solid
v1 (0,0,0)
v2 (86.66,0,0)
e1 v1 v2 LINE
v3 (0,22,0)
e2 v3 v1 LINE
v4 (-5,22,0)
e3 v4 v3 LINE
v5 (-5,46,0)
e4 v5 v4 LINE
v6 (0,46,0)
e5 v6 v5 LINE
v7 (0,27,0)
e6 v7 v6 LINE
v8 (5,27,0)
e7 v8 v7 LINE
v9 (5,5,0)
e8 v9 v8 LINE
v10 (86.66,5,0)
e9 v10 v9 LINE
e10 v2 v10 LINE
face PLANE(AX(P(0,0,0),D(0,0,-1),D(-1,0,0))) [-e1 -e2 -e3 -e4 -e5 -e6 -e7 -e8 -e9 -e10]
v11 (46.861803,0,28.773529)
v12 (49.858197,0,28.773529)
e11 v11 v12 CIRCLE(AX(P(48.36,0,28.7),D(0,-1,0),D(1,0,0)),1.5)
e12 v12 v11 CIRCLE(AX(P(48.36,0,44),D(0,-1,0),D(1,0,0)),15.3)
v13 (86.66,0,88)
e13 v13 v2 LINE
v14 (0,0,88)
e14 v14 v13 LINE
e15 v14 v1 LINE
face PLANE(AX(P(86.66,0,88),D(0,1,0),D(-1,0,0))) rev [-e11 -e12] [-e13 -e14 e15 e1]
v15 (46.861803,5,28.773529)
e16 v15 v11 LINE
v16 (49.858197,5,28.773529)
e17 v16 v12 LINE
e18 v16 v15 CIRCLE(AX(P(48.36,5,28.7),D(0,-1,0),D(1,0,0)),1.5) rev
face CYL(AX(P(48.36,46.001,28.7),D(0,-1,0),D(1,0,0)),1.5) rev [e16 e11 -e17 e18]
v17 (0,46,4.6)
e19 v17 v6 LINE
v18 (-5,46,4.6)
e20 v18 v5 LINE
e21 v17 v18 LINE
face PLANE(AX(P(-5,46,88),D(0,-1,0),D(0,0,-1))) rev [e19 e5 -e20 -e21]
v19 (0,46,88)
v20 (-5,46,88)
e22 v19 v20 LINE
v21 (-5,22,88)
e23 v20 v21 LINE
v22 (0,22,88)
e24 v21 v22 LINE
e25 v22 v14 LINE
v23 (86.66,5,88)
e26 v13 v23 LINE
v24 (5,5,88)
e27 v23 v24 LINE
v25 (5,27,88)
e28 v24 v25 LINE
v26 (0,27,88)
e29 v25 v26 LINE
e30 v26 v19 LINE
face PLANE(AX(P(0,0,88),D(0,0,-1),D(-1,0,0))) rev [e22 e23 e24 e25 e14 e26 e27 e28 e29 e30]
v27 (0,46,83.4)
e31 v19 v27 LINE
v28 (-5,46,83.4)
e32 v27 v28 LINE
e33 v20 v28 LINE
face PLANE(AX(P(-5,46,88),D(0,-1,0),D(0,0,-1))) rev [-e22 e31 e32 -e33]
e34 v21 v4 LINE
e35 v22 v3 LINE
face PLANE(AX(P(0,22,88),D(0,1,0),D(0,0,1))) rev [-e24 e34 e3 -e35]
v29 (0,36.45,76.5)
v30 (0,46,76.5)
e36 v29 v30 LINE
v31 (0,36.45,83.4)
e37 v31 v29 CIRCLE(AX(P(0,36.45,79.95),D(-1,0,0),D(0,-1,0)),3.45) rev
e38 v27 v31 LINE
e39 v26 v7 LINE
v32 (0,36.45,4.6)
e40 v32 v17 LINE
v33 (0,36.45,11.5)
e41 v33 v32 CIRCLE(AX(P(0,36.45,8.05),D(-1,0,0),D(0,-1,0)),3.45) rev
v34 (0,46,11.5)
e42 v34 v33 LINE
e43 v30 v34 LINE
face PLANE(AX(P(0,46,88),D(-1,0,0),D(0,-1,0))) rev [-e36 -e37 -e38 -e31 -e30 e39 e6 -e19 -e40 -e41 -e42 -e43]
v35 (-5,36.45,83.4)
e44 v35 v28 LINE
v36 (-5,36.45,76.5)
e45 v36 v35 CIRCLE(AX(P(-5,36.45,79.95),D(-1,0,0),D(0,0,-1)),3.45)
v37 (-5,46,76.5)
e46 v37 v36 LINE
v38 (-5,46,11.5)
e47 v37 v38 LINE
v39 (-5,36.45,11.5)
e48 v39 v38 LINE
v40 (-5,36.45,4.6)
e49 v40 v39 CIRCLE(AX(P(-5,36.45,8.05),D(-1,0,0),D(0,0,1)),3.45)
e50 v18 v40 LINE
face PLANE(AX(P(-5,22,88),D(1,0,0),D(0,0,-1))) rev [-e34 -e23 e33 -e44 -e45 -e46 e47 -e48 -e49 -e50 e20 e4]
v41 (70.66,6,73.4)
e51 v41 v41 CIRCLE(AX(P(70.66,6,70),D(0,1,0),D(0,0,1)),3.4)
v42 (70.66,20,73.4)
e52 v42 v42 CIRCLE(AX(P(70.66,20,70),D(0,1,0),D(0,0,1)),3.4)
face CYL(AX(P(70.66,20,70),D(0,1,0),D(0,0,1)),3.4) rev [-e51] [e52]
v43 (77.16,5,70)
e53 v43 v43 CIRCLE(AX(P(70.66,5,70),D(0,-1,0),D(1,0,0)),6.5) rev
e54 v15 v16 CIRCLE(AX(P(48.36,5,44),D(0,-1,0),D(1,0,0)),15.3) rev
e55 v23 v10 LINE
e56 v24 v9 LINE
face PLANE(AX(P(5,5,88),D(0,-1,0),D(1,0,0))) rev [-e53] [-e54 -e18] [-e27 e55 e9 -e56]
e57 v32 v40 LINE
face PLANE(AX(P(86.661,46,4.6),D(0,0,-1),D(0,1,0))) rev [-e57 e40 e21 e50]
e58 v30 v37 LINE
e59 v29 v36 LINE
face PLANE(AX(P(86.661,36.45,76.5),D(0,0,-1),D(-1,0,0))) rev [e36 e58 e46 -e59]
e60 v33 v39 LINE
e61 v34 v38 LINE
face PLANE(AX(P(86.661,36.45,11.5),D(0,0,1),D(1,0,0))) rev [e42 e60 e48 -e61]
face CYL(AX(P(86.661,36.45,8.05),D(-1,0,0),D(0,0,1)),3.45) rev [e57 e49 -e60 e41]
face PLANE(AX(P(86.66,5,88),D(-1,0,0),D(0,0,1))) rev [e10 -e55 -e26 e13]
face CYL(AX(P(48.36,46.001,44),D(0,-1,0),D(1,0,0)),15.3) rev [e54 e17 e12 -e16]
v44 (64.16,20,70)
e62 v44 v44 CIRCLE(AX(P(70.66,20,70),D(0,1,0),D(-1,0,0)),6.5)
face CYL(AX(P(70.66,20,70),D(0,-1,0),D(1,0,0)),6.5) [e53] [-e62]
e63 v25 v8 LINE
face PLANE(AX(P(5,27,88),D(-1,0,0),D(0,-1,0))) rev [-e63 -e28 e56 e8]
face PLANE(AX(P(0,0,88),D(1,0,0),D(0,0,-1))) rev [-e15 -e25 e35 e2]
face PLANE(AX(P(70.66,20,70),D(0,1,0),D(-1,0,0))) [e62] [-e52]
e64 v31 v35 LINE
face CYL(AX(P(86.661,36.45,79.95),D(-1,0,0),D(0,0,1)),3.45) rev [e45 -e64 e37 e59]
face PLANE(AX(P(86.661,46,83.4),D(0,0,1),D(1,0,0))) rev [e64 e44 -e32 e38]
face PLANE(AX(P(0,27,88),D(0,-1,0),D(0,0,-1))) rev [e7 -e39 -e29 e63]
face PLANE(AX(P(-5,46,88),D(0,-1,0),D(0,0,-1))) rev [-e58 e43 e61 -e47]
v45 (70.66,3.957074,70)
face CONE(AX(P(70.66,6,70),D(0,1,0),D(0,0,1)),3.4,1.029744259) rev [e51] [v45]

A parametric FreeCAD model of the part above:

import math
import FreeCAD as App
import Part
import Sketcher
from FreeCAD import Vector
Q = App.Units.Quantity

doc = App.newDocument("Part")
body = doc.addObject("PartDesign::Body", "Body")

# Sketch on XY plane
sketch1 = body.newObject("Sketcher::SketchObject", "Sketch")
sketch1.AttachmentSupport = (doc.getObject("XY_Plane"), [""])
sketch1.MapMode = "FlatFace"
sketch1.addGeometry([
    Part.LineSegment(Vector(0, 22, 0), Vector(0, 0, 0)),  # 0
    Part.LineSegment(Vector(0, 0, 0), Vector(87, 0, 0)),  # 1
    Part.LineSegment(Vector(87, 0, 0), Vector(87, 5, 0)),  # 2
    Part.LineSegment(Vector(87, 5, 0), Vector(5, 5, 0)),  # 3
    Part.LineSegment(Vector(5, 5, 0), Vector(5, 27, 0)),  # 4
    Part.LineSegment(Vector(5, 27, 0), Vector(0, 27, 0)),  # 5
    Part.LineSegment(Vector(0, 27, 0), Vector(0, 46, 0)),  # 6
    Part.LineSegment(Vector(0, 46, 0), Vector(-5, 46, 0)),  # 7
    Part.LineSegment(Vector(-5, 46, 0), Vector(-5, 22, 0)),  # 8
    Part.LineSegment(Vector(-5, 22, 0), Vector(0, 22, 0)),  # 9
], False)
sketch1.addConstraint([
    Sketcher.Constraint("Coincident", 0, 2, 1, 1),
    Sketcher.Constraint("Coincident", 1, 2, 2, 1),
    Sketcher.Constraint("Coincident", 2, 2, 3, 1),
    Sketcher.Constraint("Coincident", 3, 2, 4, 1),
    Sketcher.Constraint("Coincident", 4, 2, 5, 1),
    Sketcher.Constraint("Coincident", 5, 2, 6, 1),
    Sketcher.Constraint("Coincident", 6, 2, 7, 1),
    Sketcher.Constraint("Coincident", 7, 2, 8, 1),
    Sketcher.Constraint("Coincident", 8, 2, 9, 1),
    Sketcher.Constraint("Coincident", 9, 2, 0, 1),
    Sketcher.Constraint("Vertical", 0),
    Sketcher.Constraint("Horizontal", 1),
    Sketcher.Constraint("Vertical", 2),
    Sketcher.Constraint("Horizontal", 3),
    Sketcher.Constraint("Vertical", 4),
    Sketcher.Constraint("Horizontal", 5),
    Sketcher.Constraint("Vertical", 6),
    Sketcher.Constraint("Horizontal", 7),
    Sketcher.Constraint("Vertical", 8),
    Sketcher.Constraint("Horizontal", 9),
    Sketcher.Constraint("Coincident", 0, 2, -1, 1),
    Sketcher.Constraint("PointOnObject", 5, 2, -2),
    Sketcher.Constraint("Equal", 5, 7),
    Sketcher.Constraint("Equal", 9, 2),
    Sketcher.Constraint("Equal", 0, 4),
    Sketcher.Constraint("DistanceX", 5, 2, 5, 1, Q("5 mm")),
    Sketcher.Constraint("DistanceY", 0, 2, 0, 1, Q("22 mm")),
    Sketcher.Constraint("DistanceY", 6, 1, 6, 2, Q("19 mm")),
    Sketcher.Constraint("DistanceX", 1, 1, 1, 2, Q("86.66 mm")),
])
pad1 = body.newObject("PartDesign::Pad", "Pad")
pad1.Profile = sketch1
pad1.Length = 88

# Sketch on YZ plane
sketch2 = body.newObject("Sketcher::SketchObject", "Sketch001")
sketch2.AttachmentSupport = (doc.getObject("YZ_Plane"), [""])
sketch2.MapMode = "FlatFace"
sketch2.AttachmentOffset = App.Placement(Vector(0, 0, -5), App.Rotation())
sketch2.addGeometry([
    Part.LineSegment(Vector(46, 4.6, 0), Vector(36.5, 4.6, 0)),
    Part.ArcOfCircle(Part.Circle(Vector(36.5, 8.1, 0), Vector(0, 0, 1), 3.5), math.radians(90), math.radians(270)),
    Part.LineSegment(Vector(36.5, 11.5, 0), Vector(46, 11.5, 0)),
    Part.LineSegment(Vector(46, 11.5, 0), Vector(46, 4.6, 0)),
], False)
sketch2.addConstraint([
    Sketcher.Constraint("Tangent", 0, 2, 1, 2),
    Sketcher.Constraint("Tangent", 1, 1, 2, 1),
    Sketcher.Constraint("Coincident", 2, 2, 3, 1),
    Sketcher.Constraint("Coincident", 3, 2, 0, 1),
    Sketcher.Constraint("Horizontal", 0),
    Sketcher.Constraint("Horizontal", 2),
    Sketcher.Constraint("Vertical", 3),
    Sketcher.Constraint("Radius", 1, Q("3.45 mm")),
    Sketcher.Constraint("DistanceX", -1, 1, 2, 2, Q("46 mm")),
    Sketcher.Constraint("DistanceX", 0, 2, 0, 1, Q("9.55 mm")),
    Sketcher.Constraint("DistanceY", -1, 1, 0, 2, Q("4.6 mm")),
])
pocket1 = body.newObject("PartDesign::Pocket", "Pocket")
pocket1.Profile = sketch2
pocket1.Type = "UpToFirst"
pocket1.Reversed = True

# Sketch on YZ plane
sketch3 = body.newObject("Sketcher::SketchObject", "Sketch002")
sketch3.AttachmentSupport = (doc.getObject("YZ_Plane"), [""])
sketch3.MapMode = "FlatFace"
sketch3.AttachmentOffset = App.Placement(Vector(0, 0, -5), App.Rotation())
sketch3.addGeometry([
    Part.LineSegment(Vector(46, 83.4, 0), Vector(46, 76.5, 0)),
    Part.LineSegment(Vector(46, 76.5, 0), Vector(36.5, 76.5, 0)),
    Part.ArcOfCircle(Part.Circle(Vector(36.5, 80, 0), Vector(0, 0, 1), 3.5), math.radians(90), math.radians(270)),
    Part.LineSegment(Vector(36.5, 83.4, 0), Vector(46, 83.4, 0)),
], False)
sketch3.addConstraint([
    Sketcher.Constraint("Coincident", 0, 2, 1, 1),
    Sketcher.Constraint("Tangent", 1, 2, 2, 2),
    Sketcher.Constraint("Tangent", 2, 1, 3, 1),
    Sketcher.Constraint("Coincident", 3, 2, 0, 1),
    Sketcher.Constraint("Vertical", 0),
    Sketcher.Constraint("Horizontal", 1),
    Sketcher.Constraint("Horizontal", 3),
    Sketcher.Constraint("Radius", 2, Q("3.45 mm")),
    Sketcher.Constraint("DistanceX", -1, 1, 0, 2, Q("46 mm")),
    Sketcher.Constraint("DistanceX", 1, 2, 1, 1, Q("9.55 mm")),
    Sketcher.Constraint("DistanceY", -1, 1, 0, 2, Q("76.5 mm")),
])
pocket2 = body.newObject("PartDesign::Pocket", "Pocket001")
pocket2.Profile = sketch3
pocket2.Type = "UpToFirst"
pocket2.Reversed = True

# Sketch on XZ plane
sketch4 = body.newObject("Sketcher::SketchObject", "Sketch003")
sketch4.AttachmentSupport = (doc.getObject("XZ_Plane"), [""])
sketch4.MapMode = "FlatFace"
sketch4.addGeometry([
    Part.ArcOfCircle(Part.Circle(Vector(48.4, 44, 0), Vector(0, 0, 1), 15.3), math.radians(-84), math.radians(264)),
    Part.ArcOfCircle(Part.Circle(Vector(48.4, 28.7, 0), Vector(0, 0, 1), 1.5), math.radians(177), math.radians(363)),
], False)
sketch4.addConstraint([
    Sketcher.Constraint("Coincident", 0, 1, 1, 2),
    Sketcher.Constraint("Coincident", 1, 1, 0, 2),
    Sketcher.Constraint("Horizontal", 0, 1, 1, 1),
    Sketcher.Constraint("Radius", 0, Q("15.3 mm")),
    Sketcher.Constraint("Radius", 1, Q("1.5 mm")),
    Sketcher.Constraint("DistanceY", -1, 1, 0, 3, Q("44 mm")),
    Sketcher.Constraint("DistanceY", -1, 1, 1, 3, Q("28.7 mm")),
    Sketcher.Constraint("DistanceX", -1, 1, 0, 3, Q("48.36 mm")),
])
pocket3 = body.newObject("PartDesign::Pocket", "Pocket002")
pocket3.Profile = sketch4
pocket3.Type = "UpToFirst"

# Sketch on XZ plane
sketch5 = body.newObject("Sketcher::SketchObject", "Sketch004")
sketch5.AttachmentSupport = (doc.getObject("XZ_Plane"), [""])
sketch5.MapMode = "FlatFace"
sketch5.AttachmentOffset = App.Placement(Vector(0, 0, -5), App.Rotation())
sketch5.addGeometry(Part.Circle(Vector(71, 70, 0), Vector(0, 0, 1), 6), False)
sketch5.addConstraint([
    Sketcher.Constraint("Diameter", 0, Q("13 mm")),
    Sketcher.Constraint("DistanceY", -1, 1, 0, 3, Q("70 mm")),
    Sketcher.Constraint("DistanceX", -1, 1, 0, 3, Q("70.66 mm")),
])
pad2 = body.newObject("PartDesign::Pad", "Pad001")
pad2.Profile = sketch5
pad2.Length = 15
pad2.Reversed = True

# Sketch on XZ plane
sketch6 = body.newObject("Sketcher::SketchObject", "Sketch005")
sketch6.AttachmentSupport = (doc.getObject("XZ_Plane"), [""])
sketch6.MapMode = "FlatFace"
sketch6.AttachmentOffset = App.Placement(Vector(0, 0, -20), App.Rotation())
sketch6.addGeometry(Part.Circle(Vector(70.7, 70, 0), Vector(0, 0, 1), 3.4), False)
sketch6.addConstraint([
    Sketcher.Constraint("Diameter", 0, Q("6.8 mm")),
    Sketcher.Constraint("DistanceY", -1, 1, 0, 3, Q("70 mm")),
    Sketcher.Constraint("DistanceX", -1, 1, 0, 3, Q("70.66 mm")),
])
doc.recompute()
hole = body.newObject("PartDesign::Hole", "Hole")
hole.Profile = sketch6
hole.ThreadType = "None"
hole.Diameter = 6.8
hole.DepthType = "Dimension"
hole.Depth = 14
hole.DrillPoint = "Angled"
hole.DrillPointAngle = 118
hole.Reversed = True

doc.recompute()
